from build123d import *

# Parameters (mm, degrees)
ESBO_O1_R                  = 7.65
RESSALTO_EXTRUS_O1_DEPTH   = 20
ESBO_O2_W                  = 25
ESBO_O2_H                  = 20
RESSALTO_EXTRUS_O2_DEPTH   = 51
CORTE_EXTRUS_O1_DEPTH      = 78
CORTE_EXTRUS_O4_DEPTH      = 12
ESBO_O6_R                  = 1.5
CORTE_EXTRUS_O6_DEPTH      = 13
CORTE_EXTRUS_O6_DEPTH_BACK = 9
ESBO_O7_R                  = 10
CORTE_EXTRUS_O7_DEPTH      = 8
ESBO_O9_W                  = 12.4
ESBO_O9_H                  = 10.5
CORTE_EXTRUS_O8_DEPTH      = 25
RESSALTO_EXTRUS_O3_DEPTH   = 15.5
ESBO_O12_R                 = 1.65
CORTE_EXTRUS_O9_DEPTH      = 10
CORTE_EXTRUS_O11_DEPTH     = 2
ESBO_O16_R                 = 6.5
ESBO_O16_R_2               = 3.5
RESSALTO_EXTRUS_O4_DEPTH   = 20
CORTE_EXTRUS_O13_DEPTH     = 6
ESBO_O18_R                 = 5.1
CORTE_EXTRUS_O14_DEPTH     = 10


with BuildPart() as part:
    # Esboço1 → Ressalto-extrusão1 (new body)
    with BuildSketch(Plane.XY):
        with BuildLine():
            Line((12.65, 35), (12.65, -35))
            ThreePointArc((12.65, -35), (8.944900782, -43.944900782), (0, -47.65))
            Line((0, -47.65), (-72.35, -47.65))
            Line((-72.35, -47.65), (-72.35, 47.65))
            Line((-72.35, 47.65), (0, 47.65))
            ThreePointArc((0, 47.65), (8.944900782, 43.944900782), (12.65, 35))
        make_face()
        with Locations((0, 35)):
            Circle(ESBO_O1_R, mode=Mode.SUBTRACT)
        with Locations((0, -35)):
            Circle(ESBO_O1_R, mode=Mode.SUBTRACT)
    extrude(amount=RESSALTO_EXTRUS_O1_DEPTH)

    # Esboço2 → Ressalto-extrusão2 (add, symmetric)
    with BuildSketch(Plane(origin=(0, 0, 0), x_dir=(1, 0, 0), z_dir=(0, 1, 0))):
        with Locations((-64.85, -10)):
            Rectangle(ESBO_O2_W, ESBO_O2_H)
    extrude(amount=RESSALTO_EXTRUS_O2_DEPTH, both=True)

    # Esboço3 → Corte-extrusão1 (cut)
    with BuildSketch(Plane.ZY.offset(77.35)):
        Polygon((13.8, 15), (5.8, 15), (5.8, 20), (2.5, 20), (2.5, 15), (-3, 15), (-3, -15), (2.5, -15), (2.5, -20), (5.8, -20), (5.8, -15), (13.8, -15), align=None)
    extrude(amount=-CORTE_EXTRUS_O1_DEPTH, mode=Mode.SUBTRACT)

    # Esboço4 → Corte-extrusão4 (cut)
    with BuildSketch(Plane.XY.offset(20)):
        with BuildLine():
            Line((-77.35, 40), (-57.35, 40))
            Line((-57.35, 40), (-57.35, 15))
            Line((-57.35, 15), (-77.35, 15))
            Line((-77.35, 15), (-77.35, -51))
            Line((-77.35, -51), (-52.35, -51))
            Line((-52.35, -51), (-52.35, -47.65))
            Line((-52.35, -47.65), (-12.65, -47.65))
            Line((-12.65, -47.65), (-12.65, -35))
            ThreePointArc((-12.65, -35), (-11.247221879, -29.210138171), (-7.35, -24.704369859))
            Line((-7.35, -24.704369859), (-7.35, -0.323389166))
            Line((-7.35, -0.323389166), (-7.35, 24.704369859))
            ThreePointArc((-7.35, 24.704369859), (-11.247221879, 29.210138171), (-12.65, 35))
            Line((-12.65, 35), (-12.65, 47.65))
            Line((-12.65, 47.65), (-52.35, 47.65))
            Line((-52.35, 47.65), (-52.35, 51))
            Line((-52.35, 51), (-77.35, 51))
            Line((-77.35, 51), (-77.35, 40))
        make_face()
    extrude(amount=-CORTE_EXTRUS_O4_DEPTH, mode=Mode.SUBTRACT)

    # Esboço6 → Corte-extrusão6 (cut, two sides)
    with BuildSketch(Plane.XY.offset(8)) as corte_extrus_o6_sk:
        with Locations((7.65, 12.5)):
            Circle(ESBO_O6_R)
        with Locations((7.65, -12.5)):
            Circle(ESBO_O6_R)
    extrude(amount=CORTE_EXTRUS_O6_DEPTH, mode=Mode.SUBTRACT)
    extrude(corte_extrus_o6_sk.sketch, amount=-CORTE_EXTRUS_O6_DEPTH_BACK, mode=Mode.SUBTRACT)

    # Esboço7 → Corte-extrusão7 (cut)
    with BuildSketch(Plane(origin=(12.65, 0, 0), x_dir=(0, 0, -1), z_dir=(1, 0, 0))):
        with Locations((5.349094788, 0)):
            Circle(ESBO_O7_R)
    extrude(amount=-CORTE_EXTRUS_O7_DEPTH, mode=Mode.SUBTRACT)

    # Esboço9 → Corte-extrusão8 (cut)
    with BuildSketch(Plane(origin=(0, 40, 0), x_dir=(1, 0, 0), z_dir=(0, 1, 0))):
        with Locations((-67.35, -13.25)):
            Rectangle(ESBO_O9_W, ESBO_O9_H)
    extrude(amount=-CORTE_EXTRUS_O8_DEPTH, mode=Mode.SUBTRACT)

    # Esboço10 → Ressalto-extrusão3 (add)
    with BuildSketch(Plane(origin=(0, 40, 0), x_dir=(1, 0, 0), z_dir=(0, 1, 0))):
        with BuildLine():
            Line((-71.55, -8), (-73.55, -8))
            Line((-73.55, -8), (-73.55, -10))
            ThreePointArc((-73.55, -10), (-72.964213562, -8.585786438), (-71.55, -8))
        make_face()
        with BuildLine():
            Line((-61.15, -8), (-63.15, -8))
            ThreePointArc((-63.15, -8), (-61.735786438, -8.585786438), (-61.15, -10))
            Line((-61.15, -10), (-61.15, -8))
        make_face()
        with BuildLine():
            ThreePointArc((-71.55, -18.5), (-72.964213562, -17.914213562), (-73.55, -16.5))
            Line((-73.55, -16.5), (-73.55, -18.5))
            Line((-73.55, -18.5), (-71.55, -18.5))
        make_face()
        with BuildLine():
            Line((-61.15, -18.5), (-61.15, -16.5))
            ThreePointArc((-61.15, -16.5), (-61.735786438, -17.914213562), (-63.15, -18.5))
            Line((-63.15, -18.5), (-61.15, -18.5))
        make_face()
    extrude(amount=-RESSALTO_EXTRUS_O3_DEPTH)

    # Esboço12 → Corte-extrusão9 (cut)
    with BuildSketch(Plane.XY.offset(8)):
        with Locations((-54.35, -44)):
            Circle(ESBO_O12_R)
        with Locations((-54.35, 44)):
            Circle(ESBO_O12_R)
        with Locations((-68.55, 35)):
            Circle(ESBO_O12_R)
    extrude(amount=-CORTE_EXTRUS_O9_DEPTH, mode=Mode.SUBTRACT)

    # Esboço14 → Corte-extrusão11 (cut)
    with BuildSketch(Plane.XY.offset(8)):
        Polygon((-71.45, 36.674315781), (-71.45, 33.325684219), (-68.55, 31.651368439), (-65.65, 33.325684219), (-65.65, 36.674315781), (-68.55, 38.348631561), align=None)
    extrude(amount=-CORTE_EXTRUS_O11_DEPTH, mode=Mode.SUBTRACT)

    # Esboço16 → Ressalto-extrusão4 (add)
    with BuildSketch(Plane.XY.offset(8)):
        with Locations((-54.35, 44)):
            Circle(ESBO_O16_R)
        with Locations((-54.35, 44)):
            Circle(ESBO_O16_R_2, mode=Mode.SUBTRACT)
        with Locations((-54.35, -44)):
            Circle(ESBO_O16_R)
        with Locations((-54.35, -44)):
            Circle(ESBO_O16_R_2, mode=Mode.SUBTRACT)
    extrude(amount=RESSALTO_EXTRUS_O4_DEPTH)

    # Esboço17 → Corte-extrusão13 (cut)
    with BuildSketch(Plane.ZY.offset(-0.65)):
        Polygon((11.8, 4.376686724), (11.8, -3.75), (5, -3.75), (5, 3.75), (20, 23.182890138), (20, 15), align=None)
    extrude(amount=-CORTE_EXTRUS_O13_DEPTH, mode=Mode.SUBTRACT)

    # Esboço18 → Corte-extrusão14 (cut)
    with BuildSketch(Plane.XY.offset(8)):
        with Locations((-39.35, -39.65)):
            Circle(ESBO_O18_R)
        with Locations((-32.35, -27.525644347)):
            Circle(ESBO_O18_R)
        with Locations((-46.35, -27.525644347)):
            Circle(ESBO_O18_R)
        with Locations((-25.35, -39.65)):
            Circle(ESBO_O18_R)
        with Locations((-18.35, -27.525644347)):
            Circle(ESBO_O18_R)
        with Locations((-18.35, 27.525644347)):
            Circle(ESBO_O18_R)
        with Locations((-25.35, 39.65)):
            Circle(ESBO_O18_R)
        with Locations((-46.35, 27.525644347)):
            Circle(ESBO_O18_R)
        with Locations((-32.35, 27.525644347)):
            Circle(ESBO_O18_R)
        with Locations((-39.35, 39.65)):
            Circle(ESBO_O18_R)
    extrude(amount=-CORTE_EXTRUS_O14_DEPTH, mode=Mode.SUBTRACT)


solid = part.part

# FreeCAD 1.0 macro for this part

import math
import FreeCAD as App
import Part
import Sketcher
Q = App.Units.Quantity

doc = App.newDocument("Part")
body = doc.addObject("PartDesign::Body", "Body")

# Sketch on XY plane
sketch1 = doc.addObject("Sketcher::SketchObject", "Sketch")
body.addObject(sketch1)
sketch1.AttachmentSupport = (doc.XY_Plane, [""])
sketch1.MapMode = "FlatFace"
sketch1.addGeometry(Part.LineSegment(App.Vector(13, -35, 0), App.Vector(13, 35, 0)), False)
sketch1.addGeometry(Part.ArcOfCircle(Part.Circle(App.Vector(0, 35, 0), App.Vector(0, 0, 1), 13), math.radians(0), math.radians(90)), False)
sketch1.addGeometry(Part.LineSegment(App.Vector(0, 48, 0), App.Vector(-72, 48, 0)), False)
sketch1.addGeometry(Part.LineSegment(App.Vector(-72, 48, 0), App.Vector(-72, -48, 0)), False)
sketch1.addGeometry(Part.LineSegment(App.Vector(-72, -48, 0), App.Vector(0, -48, 0)), False)
sketch1.addGeometry(Part.ArcOfCircle(Part.Circle(App.Vector(0, -35, 0), App.Vector(0, 0, 1), 13), math.radians(-90), math.radians(0)), False)
sketch1.addGeometry(Part.Circle(App.Vector(0, -35, 0), App.Vector(0, 0, 1), 8), False)
sketch1.addGeometry(Part.Circle(App.Vector(0, 35, 0), App.Vector(0, 0, 1), 8), False)
sketch1.addConstraint(Sketcher.Constraint("Tangent", 0, 2, 1, 1))
sketch1.addConstraint(Sketcher.Constraint("Tangent", 1, 2, 2, 1))
sketch1.addConstraint(Sketcher.Constraint("Coincident", 2, 2, 3, 1))
sketch1.addConstraint(Sketcher.Constraint("Coincident", 3, 2, 4, 1))
sketch1.addConstraint(Sketcher.Constraint("Tangent", 4, 2, 5, 1))
sketch1.addConstraint(Sketcher.Constraint("Tangent", 5, 2, 0, 1))
sketch1.addConstraint(Sketcher.Constraint("Vertical", 0))
sketch1.addConstraint(Sketcher.Constraint("Horizontal", 2))
sketch1.addConstraint(Sketcher.Constraint("Vertical", 3))
sketch1.addConstraint(Sketcher.Constraint("Horizontal", 4))
sketch1.addConstraint(Sketcher.Constraint("Coincident", 6, 3, 5, 3))
sketch1.addConstraint(Sketcher.Constraint("Coincident", 7, 3, 1, 3))
sketch1.addConstraint(Sketcher.Constraint("Equal", 1, 5))
sketch1.addConstraint(Sketcher.Constraint("Equal", 6, 7))
sketch1.addConstraint(Sketcher.Constraint("Symmetric", 1, 3, 5, 3, -1, 1))
sketch1.addConstraint(Sketcher.Constraint("Diameter", 6, 15.3))
sketch1.addConstraint(Sketcher.Constraint("DistanceY", 0, 1, 0, 2, 70.0))
sketch1.addConstraint(Sketcher.Constraint("Radius", 1, 12.65))
sketch1.addConstraint(Sketcher.Constraint("DistanceX", 2, 2, 0, 2, 85.0))
pad1 = doc.addObject("PartDesign::Pad", "Pad")
body.addObject(pad1)
pad1.Profile = sketch1
pad1.Length = 20

# Sketch on XZ plane
sketch2 = doc.addObject("Sketcher::SketchObject", "Sketch001")
body.addObject(sketch2)
sketch2.AttachmentSupport = (doc.XZ_Plane, [""])
sketch2.MapMode = "FlatFace"
sketch2.addGeometry(Part.LineSegment(App.Vector(-77, 0, 0), App.Vector(-77, 20, 0)), False)
sketch2.addGeometry(Part.LineSegment(App.Vector(-77, 20, 0), App.Vector(-52, 20, 0)), False)
sketch2.addGeometry(Part.LineSegment(App.Vector(-52, 20, 0), App.Vector(-52, 0, 0)), False)
sketch2.addGeometry(Part.LineSegment(App.Vector(-52, 0, 0), App.Vector(-77, 0, 0)), False)
sketch2.addConstraint(Sketcher.Constraint("Coincident", 0, 2, 1, 1))
sketch2.addConstraint(Sketcher.Constraint("Coincident", 1, 2, 2, 1))
sketch2.addConstraint(Sketcher.Constraint("Coincident", 2, 2, 3, 1))
sketch2.addConstraint(Sketcher.Constraint("Coincident", 3, 2, 0, 1))
sketch2.addConstraint(Sketcher.Constraint("Vertical", 0))
sketch2.addConstraint(Sketcher.Constraint("Horizontal", 1))
sketch2.addConstraint(Sketcher.Constraint("Vertical", 2))
sketch2.addConstraint(Sketcher.Constraint("Horizontal", 3))
sketch2.addConstraint(Sketcher.Constraint("PointOnObject", 2, 2, -1))
sketch2.addConstraint(Sketcher.Constraint("DistanceX", 1, 1, 1, 2, 25.0))
sketch2.addConstraint(Sketcher.Constraint("DistanceY", 0, 1, 0, 2, 20.0))
sketch2.addConstraint(Sketcher.Constraint("DistanceX", 0, 2, -1, 1, 77.35))
pad2 = doc.addObject("PartDesign::Pad", "Pad001")
body.addObject(pad2)
pad2.Profile = sketch2
pad2.Length = 102
pad2.Midplane = True

# Sketch on YZ plane
sketch3 = doc.addObject("Sketcher::SketchObject", "Sketch002")
body.addObject(sketch3)
sketch3.AttachmentSupport = (doc.YZ_Plane, [""])
sketch3.MapMode = "FlatFace"
sketch3.AttachmentOffset = App.Placement(App.Vector(0, 0, -77.35), App.Rotation())
sketch3.addGeometry(Part.LineSegment(App.Vector(15, 13.8, 0), App.Vector(15, 5.8, 0)), False)
sketch3.addGeometry(Part.LineSegment(App.Vector(15, 5.8, 0), App.Vector(20, 5.8, 0)), False)
sketch3.addGeometry(Part.LineSegment(App.Vector(20, 5.8, 0), App.Vector(20, 2.5, 0)), False)
sketch3.addGeometry(Part.LineSegment(App.Vector(20, 2.5, 0), App.Vector(15, 2.5, 0)), False)
sketch3.addGeometry(Part.LineSegment(App.Vector(15, 2.5, 0), App.Vector(15, -3, 0)), False)
sketch3.addGeometry(Part.LineSegment(App.Vector(15, -3, 0), App.Vector(-15, -3, 0)), False)
sketch3.addGeometry(Part.LineSegment(App.Vector(-15, -3, 0), App.Vector(-15, 2.5, 0)), False)
sketch3.addGeometry(Part.LineSegment(App.Vector(-15, 2.5, 0), App.Vector(-20, 2.5, 0)), False)
sketch3.addGeometry(Part.LineSegment(App.Vector(-20, 2.5, 0), App.Vector(-20, 5.8, 0)), False)
sketch3.addGeometry(Part.LineSegment(App.Vector(-20, 5.8, 0), App.Vector(-15, 5.8, 0)), False)
sketch3.addGeometry(Part.LineSegment(App.Vector(-15, 5.8, 0), App.Vector(-15, 13.8, 0)), False)
sketch3.addGeometry(Part.LineSegment(App.Vector(-15, 13.8, 0), App.Vector(15, 13.8, 0)), False)
sketch3.addConstraint(Sketcher.Constraint("Coincident", 0, 2, 1, 1))
sketch3.addConstraint(Sketcher.Constraint("Coincident", 1, 2, 2, 1))
sketch3.addConstraint(Sketcher.Constraint("Coincident", 2, 2, 3, 1))
sketch3.addConstraint(Sketcher.Constraint("Coincident", 3, 2, 4, 1))
sketch3.addConstraint(Sketcher.Constraint("Coincident", 4, 2, 5, 1))
sketch3.addConstraint(Sketcher.Constraint("Coincident", 5, 2, 6, 1))
sketch3.addConstraint(Sketcher.Constraint("Coincident", 6, 2, 7, 1))
sketch3.addConstraint(Sketcher.Constraint("Coincident", 7, 2, 8, 1))
sketch3.addConstraint(Sketcher.Constraint("Coincident", 8, 2, 9, 1))
sketch3.addConstraint(Sketcher.Constraint("Coincident", 9, 2, 10, 1))
sketch3.addConstraint(Sketcher.Constraint("Coincident", 10, 2, 11, 1))
sketch3.addConstraint(Sketcher.Constraint("Coincident", 11, 2, 0, 1))
sketch3.addConstraint(Sketcher.Constraint("Vertical", 0))
sketch3.addConstraint(Sketcher.Constraint("Horizontal", 1))
sketch3.addConstraint(Sketcher.Constraint("Vertical", 2))
sketch3.addConstraint(Sketcher.Constraint("Horizontal", 3))
sketch3.addConstraint(Sketcher.Constraint("Vertical", 4))
sketch3.addConstraint(Sketcher.Constraint("Horizontal", 5))
sketch3.addConstraint(Sketcher.Constraint("Vertical", 6))
sketch3.addConstraint(Sketcher.Constraint("Horizontal", 7))
sketch3.addConstraint(Sketcher.Constraint("Vertical", 8))
sketch3.addConstraint(Sketcher.Constraint("Horizontal", 9))
sketch3.addConstraint(Sketcher.Constraint("Vertical", 10))
sketch3.addConstraint(Sketcher.Constraint("Horizontal", 11))
sketch3.addConstraint(Sketcher.Constraint("Symmetric", 3, 2, 6, 2, -2))
sketch3.addConstraint(Sketcher.Constraint("Symmetric", 1, 2, 8, 2, -2))
sketch3.addConstraint(Sketcher.Constraint("Vertical", 0, 2, 3, 2))
sketch3.addConstraint(Sketcher.Constraint("Vertical", 6, 2, 9, 2))
sketch3.addConstraint(Sketcher.Constraint("DistanceX", 1, 1, 1, 2, 5.0))
sketch3.addConstraint(Sketcher.Constraint("DistanceX", 5, 2, 5, 1, 30.0))
sketch3.addConstraint(Sketcher.Constraint("DistanceY", 0, 2, 0, 1, 8.0))
sketch3.addConstraint(Sketcher.Constraint("DistanceY", 2, 2, 2, 1, 3.3))
sketch3.addConstraint(Sketcher.Constraint("DistanceY", 4, 2, 4, 1, 5.5))
sketch3.addConstraint(Sketcher.Constraint("DistanceY", 4, 2, -1, 1, 3.0))
pocket1 = doc.addObject("PartDesign::Pocket", "Pocket")
body.addObject(pocket1)
pocket1.Profile = sketch3
pocket1.Length = 78
pocket1.Reversed = True

# Sketch on XY plane
sketch4 = doc.addObject("Sketcher::SketchObject", "Sketch003")
body.addObject(sketch4)
sketch4.AttachmentSupport = (doc.XY_Plane, [""])
sketch4.MapMode = "FlatFace"
sketch4.AttachmentOffset = App.Placement(App.Vector(0, 0, 20), App.Rotation())
sketch4.addGeometry(Part.LineSegment(App.Vector(-77.3, 40, 0), App.Vector(-57.4, 40, 0)), False)
sketch4.addGeometry(Part.LineSegment(App.Vector(-57.4, 40, 0), App.Vector(-57.4, 15, 0)), False)
sketch4.addGeometry(Part.LineSegment(App.Vector(-57.4, 15, 0), App.Vector(-77.3, 15, 0)), False)
sketch4.addGeometry(Part.LineSegment(App.Vector(-77.3, 15, 0), App.Vector(-77.3, -51, 0)), False)
sketch4.addGeometry(Part.LineSegment(App.Vector(-77.3, -51, 0), App.Vector(-52.4, -51, 0)), False)
sketch4.addGeometry(Part.LineSegment(App.Vector(-52.4, -51, 0), App.Vector(-52.4, -47.6, 0)), False)
sketch4.addGeometry(Part.LineSegment(App.Vector(-52.4, -47.6, 0), App.Vector(-12.7, -47.6, 0)), False)
sketch4.addGeometry(Part.LineSegment(App.Vector(-12.7, -47.6, 0), App.Vector(-12.7, -35, 0)), False)
sketch4.addGeometry(Part.ArcOfCircle(Part.Circle(App.Vector(0, -35, 0), App.Vector(0, 0, 1), 12.7), math.radians(126), math.radians(180)), False)
sketch4.addGeometry(Part.LineSegment(App.Vector(-7.3, -24.7, 0), App.Vector(-7.3, 24.7, 0)), False)
sketch4.addGeometry(Part.ArcOfCircle(Part.Circle(App.Vector(0, 35, 0), App.Vector(0, 0, 1), 12.7), math.radians(-180), math.radians(-126)), False)
sketch4.addGeometry(Part.LineSegment(App.Vector(-12.7, 35, 0), App.Vector(-12.7, 47.6, 0)), False)
sketch4.addGeometry(Part.LineSegment(App.Vector(-12.7, 47.6, 0), App.Vector(-52.4, 47.6, 0)), False)
sketch4.addGeometry(Part.LineSegment(App.Vector(-52.4, 47.6, 0), App.Vector(-52.4, 51, 0)), False)
sketch4.addGeometry(Part.LineSegment(App.Vector(-52.4, 51, 0), App.Vector(-77.3, 51, 0)), False)
sketch4.addGeometry(Part.LineSegment(App.Vector(-77.3, 51, 0), App.Vector(-77.3, 40, 0)), False)
sketch4.addConstraint(Sketcher.Constraint("Coincident", 0, 2, 1, 1))
sketch4.addConstraint(Sketcher.Constraint("Coincident", 1, 2, 2, 1))
sketch4.addConstraint(Sketcher.Constraint("Coincident", 2, 2, 3, 1))
sketch4.addConstraint(Sketcher.Constraint("Coincident", 3, 2, 4, 1))
sketch4.addConstraint(Sketcher.Constraint("Coincident", 4, 2, 5, 1))
sketch4.addConstraint(Sketcher.Constraint("Coincident", 5, 2, 6, 1))
sketch4.addConstraint(Sketcher.Constraint("Coincident", 6, 2, 7, 1))
sketch4.addConstraint(Sketcher.Constraint("Tangent", 7, 2, 8, 2))
sketch4.addConstraint(Sketcher.Constraint("Coincident", 8, 1, 9, 1))
sketch4.addConstraint(Sketcher.Constraint("Coincident", 9, 2, 10, 2))
sketch4.addConstraint(Sketcher.Constraint("Tangent", 10, 1, 11, 1))
sketch4.addConstraint(Sketcher.Constraint("Coincident", 11, 2, 12, 1))
sketch4.addConstraint(Sketcher.Constraint("Coincident", 12, 2, 13, 1))
sketch4.addConstraint(Sketcher.Constraint("Coincident", 13, 2, 14, 1))
sketch4.addConstraint(Sketcher.Constraint("Coincident", 14, 2, 15, 1))
sketch4.addConstraint(Sketcher.Constraint("Coincident", 15, 2, 0, 1))
sketch4.addConstraint(Sketcher.Constraint("Horizontal", 0))
sketch4.addConstraint(Sketcher.Constraint("Vertical", 1))
sketch4.addConstraint(Sketcher.Constraint("Horizontal", 2))
sketch4.addConstraint(Sketcher.Constraint("Vertical", 3))
sketch4.addConstraint(Sketcher.Constraint("Horizontal", 4))
sketch4.addConstraint(Sketcher.Constraint("Vertical", 5))
sketch4.addConstraint(Sketcher.Constraint("Horizontal", 6))
sketch4.addConstraint(Sketcher.Constraint("Vertical", 7))
sketch4.addConstraint(Sketcher.Constraint("Vertical", 9))
sketch4.addConstraint(Sketcher.Constraint("Vertical", 11))
sketch4.addConstraint(Sketcher.Constraint("Horizontal", 12))
sketch4.addConstraint(Sketcher.Constraint("Vertical", 13))
sketch4.addConstraint(Sketcher.Constraint("Horizontal", 14))
sketch4.addConstraint(Sketcher.Constraint("Vertical", 15))
sketch4.addConstraint(Sketcher.Constraint("Equal", 8, 10))
sketch4.addConstraint(Sketcher.Constraint("Symmetric", 8, 3, 10, 3, -1, 1))
sketch4.addConstraint(Sketcher.Constraint("Symmetric", 6, 2, 11, 2, -1))
sketch4.addConstraint(Sketcher.Constraint("Symmetric", 4, 2, 13, 2, -1))
sketch4.addConstraint(Sketcher.Constraint("Vertical", 3, 2, 14, 2))
sketch4.addConstraint(Sketcher.Constraint("Equal", 14, 1))
sketch4.addConstraint(Sketcher.Constraint("DistanceX", 0, 1, 0, 2, 20.0))
sketch4.addConstraint(Sketcher.Constraint("DistanceX", 4, 1, 4, 2, 25.0))
sketch4.addConstraint(Sketcher.Constraint("DistanceY", 3, 2, 3, 1, 66.0))
sketch4.addConstraint(Sketcher.Constraint("DistanceY", 15, 2, 15, 1, 11.0))
sketch4.addConstraint(Sketcher.Constraint("Radius", 8, 12.65))
sketch4.addConstraint(Sketcher.Constraint("DistanceX", 6, 1, 6, 2, 39.7))
sketch4.addConstraint(Sketcher.Constraint("DistanceY", 8, 3, -1, 1, 35.0))
sketch4.addConstraint(Sketcher.Constraint("DistanceX", 5, 2, 8, 1, 45.0))
sketch4.addConstraint(Sketcher.Constraint("DistanceY", 5, 1, 5, 2, 3.35))
pocket2 = doc.addObject("PartDesign::Pocket", "Pocket001")
body.addObject(pocket2)
pocket2.Profile = sketch4
pocket2.Length = 12

# Sketch on XY plane
sketch5 = doc.addObject("Sketcher::SketchObject", "Sketch004")
body.addObject(sketch5)
sketch5.AttachmentSupport = (doc.XY_Plane, [""])
sketch5.MapMode = "FlatFace"
sketch5.AttachmentOffset = App.Placement(App.Vector(0, 0, 8), App.Rotation())
sketch5.addGeometry(Part.Circle(App.Vector(7.7, 12.5, 0), App.Vector(0, 0, 1), 1.5), False)
sketch5.addGeometry(Part.Circle(App.Vector(7.7, -12.5, 0), App.Vector(0, 0, 1), 1.5), False)
sketch5.addConstraint(Sketcher.Constraint("Equal", 0, 1))
sketch5.addConstraint(Sketcher.Constraint("Symmetric", 0, 3, 1, 3, -1))
sketch5.addConstraint(Sketcher.Constraint("Diameter", 0, 3.0))
sketch5.addConstraint(Sketcher.Constraint("DistanceY", 1, 3, 0, 3, 25.0))
sketch5.addConstraint(Sketcher.Constraint("DistanceX", -1, 1, 0, 3, 7.65))
pocket3 = doc.addObject("PartDesign::Pocket", "Pocket002")
body.addObject(pocket3)
pocket3.Profile = sketch5
pocket3.Type = "ThroughAll"
pocket3.Midplane = True

# Sketch on YZ plane
sketch6 = doc.addObject("Sketcher::SketchObject", "Sketch005")
body.addObject(sketch6)
sketch6.AttachmentSupport = (doc.YZ_Plane, [""])
sketch6.MapMode = "FlatFace"
sketch6.AttachmentOffset = App.Placement(App.Vector(0, 0, 12.65), App.Rotation())
sketch6.addGeometry(Part.Circle(App.Vector(0, -5, 0), App.Vector(0, 0, 1), 10), False)
sketch6.addConstraint(Sketcher.Constraint("PointOnObject", 0, 3, -2))
sketch6.addConstraint(Sketcher.Constraint("Diameter", 0, 20.0))
sketch6.addConstraint(Sketcher.Constraint("DistanceY", 0, 3, -1, 1, 5.349095))
pocket4 = doc.addObject("PartDesign::Pocket", "Pocket003")
body.addObject(pocket4)
pocket4.Profile = sketch6
pocket4.Length = 8

# Sketch on XZ plane
sketch7 = doc.addObject("Sketcher::SketchObject", "Sketch006")
body.addObject(sketch7)
sketch7.AttachmentSupport = (doc.XZ_Plane, [""])
sketch7.MapMode = "FlatFace"
sketch7.AttachmentOffset = App.Placement(App.Vector(0, 0, -40), App.Rotation())
sketch7.addGeometry(Part.LineSegment(App.Vector(-74, 8, 0), App.Vector(-74, 18, 0)), False)
sketch7.addGeometry(Part.LineSegment(App.Vector(-74, 18, 0), App.Vector(-61, 18, 0)), False)
sketch7.addGeometry(Part.LineSegment(App.Vector(-61, 18, 0), App.Vector(-61, 8, 0)), False)
sketch7.addGeometry(Part.LineSegment(App.Vector(-61, 8, 0), App.Vector(-74, 8, 0)), False)
sketch7.addConstraint(Sketcher.Constraint("Coincident", 0, 2, 1, 1))
sketch7.addConstraint(Sketcher.Constraint("Coincident", 1, 2, 2, 1))
sketch7.addConstraint(Sketcher.Constraint("Coincident", 2, 2, 3, 1))
sketch7.addConstraint(Sketcher.Constraint("Coincident", 3, 2, 0, 1))
sketch7.addConstraint(Sketcher.Constraint("Vertical", 0))
sketch7.addConstraint(Sketcher.Constraint("Horizontal", 1))
sketch7.addConstraint(Sketcher.Constraint("Vertical", 2))
sketch7.addConstraint(Sketcher.Constraint("Horizontal", 3))
sketch7.addConstraint(Sketcher.Constraint("DistanceX", 1, 1, 1, 2, 12.4))
sketch7.addConstraint(Sketcher.Constraint("DistanceY", 0, 1, 0, 2, 10.5))
sketch7.addConstraint(Sketcher.Constraint("DistanceY", -1, 1, 2, 2, 8.0))
sketch7.addConstraint(Sketcher.Constraint("DistanceX", 0, 2, -1, 1, 73.55))
pocket5 = doc.addObject("PartDesign::Pocket", "Pocket004")
body.addObject(pocket5)
pocket5.Profile = sketch7
pocket5.Length = 25
pocket5.Reversed = True

# Sketch on XZ plane
sketch8 = doc.addObject("Sketcher::SketchObject", "Sketch007")
body.addObject(sketch8)
sketch8.AttachmentSupport = (doc.XZ_Plane, [""])
sketch8.MapMode = "FlatFace"
sketch8.AttachmentOffset = App.Placement(App.Vector(0, 0, -40), App.Rotation())
sketch8.addGeometry(Part.LineSegment(App.Vector(-71.5, 8, 0), App.Vector(-73.5, 8, 0)), False)
sketch8.addGeometry(Part.LineSegment(App.Vector(-73.5, 8, 0), App.Vector(-73.5, 10, 0)), False)
sketch8.addGeometry(Part.ArcOfCircle(Part.Circle(App.Vector(-71.5, 10, 0), App.Vector(0, 0, 1), 2), math.radians(-180), math.radians(-90)), False)
sketch8.addGeometry(Part.LineSegment(App.Vector(-61.1, 8, 0), App.Vector(-63.1, 8, 0)), False)
sketch8.addGeometry(Part.ArcOfCircle(Part.Circle(App.Vector(-63.2, 10, 0), App.Vector(0, 0, 1), 2), math.radians(-90), math.radians(0)), False)
sketch8.addGeometry(Part.LineSegment(App.Vector(-61.1, 10, 0), App.Vector(-61.1, 8, 0)), False)
sketch8.addGeometry(Part.ArcOfCircle(Part.Circle(App.Vector(-71.5, 16.5, 0), App.Vector(0, 0, 1), 2), math.radians(90), math.radians(180)), False)
sketch8.addGeometry(Part.LineSegment(App.Vector(-73.5, 16.5, 0), App.Vector(-73.5, 18.5, 0)), False)
sketch8.addGeometry(Part.LineSegment(App.Vector(-73.5, 18.5, 0), App.Vector(-71.5, 18.5, 0)), False)
sketch8.addGeometry(Part.LineSegment(App.Vector(-61.1, 18.5, 0), App.Vector(-61.1, 16.5, 0)), False)
sketch8.addGeometry(Part.ArcOfCircle(Part.Circle(App.Vector(-63.2, 16.5, 0), App.Vector(0, 0, 1), 2), math.radians(0), math.radians(90)), False)
sketch8.addGeometry(Part.LineSegment(App.Vector(-63.1, 18.5, 0), App.Vector(-61.1, 18.5, 0)), False)
sketch8.addConstraint(Sketcher.Constraint("Coincident", 0, 2, 1, 1))
sketch8.addConstraint(Sketcher.Constraint("Tangent", 1, 2, 2, 1))
sketch8.addConstraint(Sketcher.Constraint("Tangent", 2, 2, 0, 1))
sketch8.addConstraint(Sketcher.Constraint("Tangent", 3, 2, 4, 1))
sketch8.addConstraint(Sketcher.Constraint("Tangent", 4, 2, 5, 1))
sketch8.addConstraint(Sketcher.Constraint("Coincident", 5, 2, 3, 1))
sketch8.addConstraint(Sketcher.Constraint("Tangent", 6, 2, 7, 1))
sketch8.addConstraint(Sketcher.Constraint("Coincident", 7, 2, 8, 1))
sketch8.addConstraint(Sketcher.Constraint("Tangent", 8, 2, 6, 1))
sketch8.addConstraint(Sketcher.Constraint("Tangent", 9, 2, 10, 1))
sketch8.addConstraint(Sketcher.Constraint("Tangent", 10, 2, 11, 1))
sketch8.addConstraint(Sketcher.Constraint("Coincident", 11, 2, 9, 1))
sketch8.addConstraint(Sketcher.Constraint("Horizontal", 0))
sketch8.addConstraint(Sketcher.Constraint("Vertical", 1))
sketch8.addConstraint(Sketcher.Constraint("Horizontal", 3))
sketch8.addConstraint(Sketcher.Constraint("Vertical", 5))
sketch8.addConstraint(Sketcher.Constraint("Vertical", 7))
sketch8.addConstraint(Sketcher.Constraint("Horizontal", 8))
sketch8.addConstraint(Sketcher.Constraint("Vertical", 9))
sketch8.addConstraint(Sketcher.Constraint("Horizontal", 11))
sketch8.addConstraint(Sketcher.Constraint("Equal", 2, 4))
sketch8.addConstraint(Sketcher.Constraint("Equal", 4, 6))
sketch8.addConstraint(Sketcher.Constraint("Equal", 6, 10))
sketch8.addConstraint(Sketcher.Constraint("Horizontal", 2, 3, 4, 3))
sketch8.addConstraint(Sketcher.Constraint("Horizontal", 6, 3, 10, 3))
sketch8.addConstraint(Sketcher.Constraint("Vertical", 2, 3, 6, 3))
sketch8.addConstraint(Sketcher.Constraint("Vertical", 4, 3, 10, 3))
sketch8.addConstraint(Sketcher.Constraint("Radius", 2, 2.0))
sketch8.addConstraint(Sketcher.Constraint("DistanceY", -1, 1, 2, 3, 10.0))
sketch8.addConstraint(Sketcher.Constraint("DistanceY", -1, 1, 6, 3, 16.5))
sketch8.addConstraint(Sketcher.Constraint("DistanceX", 2, 3, 4, 3, 8.4))
sketch8.addConstraint(Sketcher.Constraint("DistanceX", 2, 3, -1, 1, 71.55))
pad3 = doc.addObject("PartDesign::Pad", "Pad002")
body.addObject(pad3)
pad3.Profile = sketch8
pad3.Length = 15.5

# Sketch on XY plane
sketch9 = doc.addObject("Sketcher::SketchObject", "Sketch008")
body.addObject(sketch9)
sketch9.AttachmentSupport = (doc.XY_Plane, [""])
sketch9.MapMode = "FlatFace"
sketch9.AttachmentOffset = App.Placement(App.Vector(0, 0, 8), App.Rotation())
sketch9.addGeometry(Part.Circle(App.Vector(-54.4, -44, 0), App.Vector(0, 0, 1), 1.6), False)
sketch9.addGeometry(Part.Circle(App.Vector(-54.4, 44, 0), App.Vector(0, 0, 1), 1.6), False)
sketch9.addGeometry(Part.Circle(App.Vector(-68.5, 35, 0), App.Vector(0, 0, 1), 1.6), False)
sketch9.addConstraint(Sketcher.Constraint("Equal", 0, 1))
sketch9.addConstraint(Sketcher.Constraint("Equal", 1, 2))
sketch9.addConstraint(Sketcher.Constraint("Symmetric", 0, 3, 1, 3, -1))
sketch9.addConstraint(Sketcher.Constraint("Diameter", 0, 3.3))
sketch9.addConstraint(Sketcher.Constraint("DistanceY", 0, 3, -1, 1, 44.0))
sketch9.addConstraint(Sketcher.Constraint("DistanceY", -1, 1, 2, 3, 35.0))
sketch9.addConstraint(Sketcher.Constraint("DistanceX", 2, 3, 1, 3, 14.2))
sketch9.addConstraint(Sketcher.Constraint("DistanceX", 0, 3, -1, 1, 54.35))
pocket6 = doc.addObject("PartDesign::Pocket", "Pocket005")
body.addObject(pocket6)
pocket6.Profile = sketch9
pocket6.Length = 10

# Sketch on XY plane
sketch10 = doc.addObject("Sketcher::SketchObject", "Sketch009")
body.addObject(sketch10)
sketch10.AttachmentSupport = (doc.XY_Plane, [""])
sketch10.MapMode = "FlatFace"
sketch10.AttachmentOffset = App.Placement(App.Vector(0, 0, 8), App.Rotation())
sketch10.addGeometry(Part.LineSegment(App.Vector(-71.5, 36.7, 0), App.Vector(-71.5, 33.3, 0)), False)
sketch10.addGeometry(Part.LineSegment(App.Vector(-71.5, 33.3, 0), App.Vector(-68.5, 31.7, 0)), False)
sketch10.addGeometry(Part.LineSegment(App.Vector(-68.5, 31.7, 0), App.Vector(-65.7, 33.3, 0)), False)
sketch10.addGeometry(Part.LineSegment(App.Vector(-65.7, 33.3, 0), App.Vector(-65.7, 36.7, 0)), False)
sketch10.addGeometry(Part.LineSegment(App.Vector(-65.7, 36.7, 0), App.Vector(-68.5, 38.3, 0)), False)
sketch10.addGeometry(Part.LineSegment(App.Vector(-68.5, 38.3, 0), App.Vector(-71.5, 36.7, 0)), False)
sketch10.addConstraint(Sketcher.Constraint("Coincident", 0, 2, 1, 1))
sketch10.addConstraint(Sketcher.Constraint("Coincident", 1, 2, 2, 1))
sketch10.addConstraint(Sketcher.Constraint("Coincident", 2, 2, 3, 1))
sketch10.addConstraint(Sketcher.Constraint("Coincident", 3, 2, 4, 1))
sketch10.addConstraint(Sketcher.Constraint("Coincident", 4, 2, 5, 1))
sketch10.addConstraint(Sketcher.Constraint("Coincident", 5, 2, 0, 1))
sketch10.addConstraint(Sketcher.Constraint("Vertical", 0))
sketch10.addConstraint(Sketcher.Constraint("Vertical", 3))
sketch10.addConstraint(Sketcher.Constraint("Parallel", 1, 4))
sketch10.addConstraint(Sketcher.Constraint("Parallel", 2, 5))
sketch10.addConstraint(Sketcher.Constraint("Horizontal", 0, 2, 2, 2))
sketch10.addConstraint(Sketcher.Constraint("Horizontal", 3, 2, 5, 2))
sketch10.addConstraint(Sketcher.Constraint("Vertical", 1, 2, 4, 2))
sketch10.addConstraint(Sketcher.Constraint("Angle", 1, Q("-30 deg")))
sketch10.addConstraint(Sketcher.Constraint("DistanceX", 0, 2, 1, 2, 2.9))
sketch10.addConstraint(Sketcher.Constraint("DistanceX", 0, 2, -1, 1, 71.45))
sketch10.addConstraint(Sketcher.Constraint("DistanceY", 0, 2, 0, 1, 3.348632))
sketch10.addConstraint(Sketcher.Constraint("DistanceY", -1, 1, 1, 2, 31.651368))
pocket7 = doc.addObject("PartDesign::Pocket", "Pocket006")
body.addObject(pocket7)
pocket7.Profile = sketch10
pocket7.Length = 2

# Sketch on XY plane
sketch11 = doc.addObject("Sketcher::SketchObject", "Sketch010")
body.addObject(sketch11)
sketch11.AttachmentSupport = (doc.XY_Plane, [""])
sketch11.MapMode = "FlatFace"
sketch11.AttachmentOffset = App.Placement(App.Vector(0, 0, 8), App.Rotation())
sketch11.addGeometry(Part.Circle(App.Vector(-54.4, 44, 0), App.Vector(0, 0, 1), 6.5), False)
sketch11.addGeometry(Part.Circle(App.Vector(-54.4, 44, 0), App.Vector(0, 0, 1), 3.5), False)
sketch11.addGeometry(Part.Circle(App.Vector(-54.4, -44, 0), App.Vector(0, 0, 1), 6.5), False)
sketch11.addGeometry(Part.Circle(App.Vector(-54.4, -44, 0), App.Vector(0, 0, 1), 3.5), False)
sketch11.addConstraint(Sketcher.Constraint("Coincident", 1, 3, 0, 3))
sketch11.addConstraint(Sketcher.Constraint("Coincident", 3, 3, 2, 3))
sketch11.addConstraint(Sketcher.Constraint("Equal", 0, 2))
sketch11.addConstraint(Sketcher.Constraint("Equal", 1, 3))
sketch11.addConstraint(Sketcher.Constraint("Symmetric", 0, 3, 2, 3, -1))
sketch11.addConstraint(Sketcher.Constraint("Diameter", 0, 13.0))
sketch11.addConstraint(Sketcher.Constraint("Diameter", 1, 7.0))
sketch11.addConstraint(Sketcher.Constraint("DistanceY", -1, 1, 0, 3, 44.0))
sketch11.addConstraint(Sketcher.Constraint("DistanceX", 0, 3, -1, 1, 54.35))
pad4 = doc.addObject("PartDesign::Pad", "Pad003")
body.addObject(pad4)
pad4.Profile = sketch11
pad4.Length = 20

# Sketch on YZ plane
sketch12 = doc.addObject("Sketcher::SketchObject", "Sketch011")
body.addObject(sketch12)
sketch12.AttachmentSupport = (doc.YZ_Plane, [""])
sketch12.MapMode = "FlatFace"
sketch12.AttachmentOffset = App.Placement(App.Vector(0, 0, 0.65), App.Rotation())
sketch12.addGeometry(Part.LineSegment(App.Vector(-4, 12, 0), App.Vector(4, 12, 0)), False)
sketch12.addGeometry(Part.LineSegment(App.Vector(4, 12, 0), App.Vector(15, 20, 0)), False)
sketch12.addGeometry(Part.LineSegment(App.Vector(15, 20, 0), App.Vector(23, 20, 0)), False)
sketch12.addGeometry(Part.LineSegment(App.Vector(23, 20, 0), App.Vector(4, 5, 0)), False)
sketch12.addGeometry(Part.LineSegment(App.Vector(4, 5, 0), App.Vector(-4, 5, 0)), False)
sketch12.addGeometry(Part.LineSegment(App.Vector(-4, 5, 0), App.Vector(-4, 12, 0)), False)
sketch12.addConstraint(Sketcher.Constraint("Coincident", 0, 2, 1, 1))
sketch12.addConstraint(Sketcher.Constraint("Coincident", 1, 2, 2, 1))
sketch12.addConstraint(Sketcher.Constraint("Coincident", 2, 2, 3, 1))
sketch12.addConstraint(Sketcher.Constraint("Coincident", 3, 2, 4, 1))
sketch12.addConstraint(Sketcher.Constraint("Coincident", 4, 2, 5, 1))
sketch12.addConstraint(Sketcher.Constraint("Coincident", 5, 2, 0, 1))
sketch12.addConstraint(Sketcher.Constraint("Horizontal", 0))
sketch12.addConstraint(Sketcher.Constraint("Horizontal", 2))
sketch12.addConstraint(Sketcher.Constraint("Horizontal", 4))
sketch12.addConstraint(Sketcher.Constraint("Vertical", 5))
sketch12.addConstraint(Sketcher.Constraint("Parallel", 1, 3))
sketch12.addConstraint(Sketcher.Constraint("DistanceX", 4, 2, 4, 1, 7.5))
sketch12.addConstraint(Sketcher.Constraint("DistanceY", 5, 1, 5, 2, 6.8))
sketch12.addConstraint(Sketcher.Constraint("DistanceX", -1, 1, 1, 2, 15.0))
sketch12.addConstraint(Sketcher.Constraint("DistanceY", -1, 1, 1, 2, 20.0))
sketch12.addConstraint(Sketcher.Constraint("DistanceY", -1, 1, 3, 2, 5.0))
sketch12.addConstraint(Sketcher.Constraint("DistanceX", -1, 1, 3, 2, 3.75))
sketch12.addConstraint(Sketcher.Constraint("DistanceX", 2, 1, 2, 2, 8.18289))
pocket8 = doc.addObject("PartDesign::Pocket", "Pocket007")
body.addObject(pocket8)
pocket8.Profile = sketch12
pocket8.Length = 6
pocket8.Reversed = True

# Sketch on XY plane
sketch13 = doc.addObject("Sketcher::SketchObject", "Sketch012")
body.addObject(sketch13)
sketch13.AttachmentSupport = (doc.XY_Plane, [""])
sketch13.MapMode = "FlatFace"
sketch13.AttachmentOffset = App.Placement(App.Vector(0, 0, 8), App.Rotation())
sketch13.addGeometry(Part.Circle(App.Vector(-39, -40, 0), App.Vector(0, 0, 1), 5), False)
sketch13.addGeometry(Part.Circle(App.Vector(-32, -28, 0), App.Vector(0, 0, 1), 5), False)
sketch13.addGeometry(Part.Circle(App.Vector(-46, -28, 0), App.Vector(0, 0, 1), 5), False)
sketch13.addGeometry(Part.Circle(App.Vector(-25, -40, 0), App.Vector(0, 0, 1), 5), False)
sketch13.addGeometry(Part.Circle(App.Vector(-18, -28, 0), App.Vector(0, 0, 1), 5), False)
sketch13.addGeometry(Part.Circle(App.Vector(-18, 28, 0), App.Vector(0, 0, 1), 5), False)
sketch13.addGeometry(Part.Circle(App.Vector(-25, 40, 0), App.Vector(0, 0, 1), 5), False)
sketch13.addGeometry(Part.Circle(App.Vector(-46, 28, 0), App.Vector(0, 0, 1), 5), False)
sketch13.addGeometry(Part.Circle(App.Vector(-32, 28, 0), App.Vector(0, 0, 1), 5), False)
sketch13.addGeometry(Part.Circle(App.Vector(-39, 40, 0), App.Vector(0, 0, 1), 5), False)
sketch13.addConstraint(Sketcher.Constraint("Equal", 0, 1))
sketch13.addConstraint(Sketcher.Constraint("Equal", 1, 2))
sketch13.addConstraint(Sketcher.Constraint("Equal", 2, 3))
sketch13.addConstraint(Sketcher.Constraint("Equal", 3, 4))
sketch13.addConstraint(Sketcher.Constraint("Equal", 4, 5))
sketch13.addConstraint(Sketcher.Constraint("Equal", 5, 6))
sketch13.addConstraint(Sketcher.Constraint("Equal", 6, 7))
sketch13.addConstraint(Sketcher.Constraint("Equal", 7, 8))
sketch13.addConstraint(Sketcher.Constraint("Equal", 8, 9))
sketch13.addConstraint(Sketcher.Constraint("Symmetric", 4, 3, 5, 3, -1))
sketch13.addConstraint(Sketcher.Constraint("Symmetric", 3, 3, 6, 3, -1))
sketch13.addConstraint(Sketcher.Constraint("Symmetric", 2, 3, 7, 3, -1))
sketch13.addConstraint(Sketcher.Constraint("Symmetric", 1, 3, 8, 3, -1))
sketch13.addConstraint(Sketcher.Constraint("Symmetric", 0, 3, 9, 3, -1))
sketch13.addConstraint(Sketcher.Constraint("Horizontal", 1, 3, 2, 3))
sketch13.addConstraint(Sketcher.Constraint("Horizontal", 0, 3, 3, 3))
sketch13.addConstraint(Sketcher.Constraint("Horizontal", 2, 3, 4, 3))
sketch13.addConstraint(Sketcher.Constraint("Diameter", 0, 10.2))
sketch13.addConstraint(Sketcher.Constraint("DistanceX", 0, 3, 1, 3, 7.0))
sketch13.addConstraint(Sketcher.Constraint("DistanceX", 2, 3, 1, 3, 14.0))
sketch13.addConstraint(Sketcher.Constraint("DistanceX", 0, 3, 3, 3, 14.0))
sketch13.addConstraint(Sketcher.Constraint("DistanceX", 1, 3, 4, 3, 14.0))
sketch13.addConstraint(Sketcher.Constraint("DistanceY", 3, 3, 6, 3, 79.3))
sketch13.addConstraint(Sketcher.Constraint("DistanceX", 0, 3, -1, 1, 39.35))
sketch13.addConstraint(Sketcher.Constraint("DistanceY", 4, 3, 5, 3, 55.051289))
pocket9 = doc.addObject("PartDesign::Pocket", "Pocket008")
body.addObject(pocket9)
pocket9.Profile = sketch13
pocket9.Length = 10

doc.recompute()
